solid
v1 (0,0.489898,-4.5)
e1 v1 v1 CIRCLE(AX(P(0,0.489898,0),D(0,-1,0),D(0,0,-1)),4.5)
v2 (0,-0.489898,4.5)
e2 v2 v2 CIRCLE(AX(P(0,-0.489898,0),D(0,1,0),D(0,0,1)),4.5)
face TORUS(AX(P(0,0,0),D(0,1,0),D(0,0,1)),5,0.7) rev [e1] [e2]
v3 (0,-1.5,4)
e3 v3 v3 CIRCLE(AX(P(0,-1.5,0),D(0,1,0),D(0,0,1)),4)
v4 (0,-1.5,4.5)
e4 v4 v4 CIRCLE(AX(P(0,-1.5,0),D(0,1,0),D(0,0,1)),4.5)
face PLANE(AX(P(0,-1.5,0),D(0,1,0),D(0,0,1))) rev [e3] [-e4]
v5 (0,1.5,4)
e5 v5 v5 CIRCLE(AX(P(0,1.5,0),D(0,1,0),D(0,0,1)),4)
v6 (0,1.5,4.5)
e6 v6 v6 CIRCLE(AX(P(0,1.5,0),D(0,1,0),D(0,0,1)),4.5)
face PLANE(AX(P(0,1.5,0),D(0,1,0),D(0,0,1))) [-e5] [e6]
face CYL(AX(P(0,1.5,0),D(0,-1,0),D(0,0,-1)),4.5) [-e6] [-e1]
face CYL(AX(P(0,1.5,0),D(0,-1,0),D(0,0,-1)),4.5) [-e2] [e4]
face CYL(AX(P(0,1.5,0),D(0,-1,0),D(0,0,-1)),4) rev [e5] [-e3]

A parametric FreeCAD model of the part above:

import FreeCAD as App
import Part
import Sketcher
from FreeCAD import Vector
Q = App.Units.Quantity

doc = App.newDocument("Part")
body = doc.addObject("PartDesign::Body", "Body")

# Sketch on XZ plane
sketch1 = body.newObject("Sketcher::SketchObject", "Sketch")
sketch1.AttachmentSupport = (doc.getObject("XZ_Plane"), [""])
sketch1.MapMode = "FlatFace"
sketch1.addGeometry(Part.Circle(Vector(0, 0, 0), Vector(0, 0, 1), 4.5), False)
sketch1.addGeometry(Part.Circle(Vector(0, 0, 0), Vector(0, 0, 1), 4), False)
sketch1.addConstraint(Sketcher.Constraint("Coincident", 0, 3, -1, 1))
sketch1.addConstraint(Sketcher.Constraint("Coincident", 1, 3, -1, 1))
sketch1.addConstraint(Sketcher.Constraint("Diameter", 0, Q("9 mm")))
sketch1.addConstraint(Sketcher.Constraint("Diameter", 1, Q("8 mm")))
pad1 = body.newObject("PartDesign::Pad", "Pad")
pad1.Profile = sketch1
pad1.Length = 3
pad1.Midplane = True

# Sketch on XY plane
sketch2 = body.newObject("Sketcher::SketchObject", "Sketch001")
sketch2.AttachmentSupport = (doc.getObject("XY_Plane"), [""])
sketch2.MapMode = "FlatFace"
sketch2.addGeometry(Part.Circle(Vector(5, 0, 0), Vector(0, 0, 1), 0.7), False)
sketch2.addConstraint(Sketcher.Constraint("PointOnObject", 0, 3, -1))
sketch2.addConstraint(Sketcher.Constraint("Diameter", 0, Q("1.4 mm")))
sketch2.addConstraint(Sketcher.Constraint("DistanceX", -1, 1, 0, 3, Q("5 mm")))
groove = body.newObject("PartDesign::Groove", "Groove")
groove.Profile = sketch2
groove.ReferenceAxis = (sketch2, ["V_Axis"])
groove.Angle = 360

doc.recompute()
